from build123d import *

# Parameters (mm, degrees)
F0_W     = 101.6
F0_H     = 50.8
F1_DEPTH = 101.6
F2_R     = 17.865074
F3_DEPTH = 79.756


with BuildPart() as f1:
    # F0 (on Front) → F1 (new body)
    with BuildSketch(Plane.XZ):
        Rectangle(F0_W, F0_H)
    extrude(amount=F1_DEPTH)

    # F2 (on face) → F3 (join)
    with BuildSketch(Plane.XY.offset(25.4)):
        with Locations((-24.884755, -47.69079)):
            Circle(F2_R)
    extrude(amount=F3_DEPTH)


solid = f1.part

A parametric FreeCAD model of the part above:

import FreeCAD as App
import Part
import Sketcher

V = App.Vector
Q = App.Units.Quantity


def add_polygon(sketch, points):
    """Adds a closed chain of lines whose ends are joined by coincident constraints."""
    first, n = sketch.GeometryCount, len(points)
    for a, b in zip(points, points[1:] + points[:1]):
        sketch.addGeometry(Part.LineSegment(App.Vector(*a, 0), App.Vector(*b, 0)), False)
    for i in range(n):
        sketch.addConstraint(Sketcher.Constraint("Coincident", first + i, 2, first + (i + 1) % n, 1))

doc = App.newDocument("Part")
body = doc.addObject("PartDesign::Body", "Body")

sketch1 = body.newObject("Sketcher::SketchObject", "Sketch")
sketch1.AttachmentSupport = (doc.getObject("XZ_Plane"), [""])
sketch1.MapMode = "FlatFace"
add_polygon(sketch1, [(-51, 25), (-51, -25), (51, -25), (51, 25)])
sketch1.addConstraint(Sketcher.Constraint("Vertical", 0))
sketch1.addConstraint(Sketcher.Constraint("Horizontal", 1))
sketch1.addConstraint(Sketcher.Constraint("Vertical", 2))
sketch1.addConstraint(Sketcher.Constraint("Horizontal", 3))
sketch1.addConstraint(Sketcher.Constraint("Symmetric", 0, 2, 2, 2, -1, 1))
sketch1.addConstraint(Sketcher.Constraint("DistanceX", 1, 1, 1, 2, Q("4 in")))
sketch1.addConstraint(Sketcher.Constraint("DistanceY", 0, 2, 0, 1, Q("2 in")))
pad1 = body.newObject("PartDesign::Pad", "Pad")
pad1.Profile = sketch1
pad1.Length = Q("4 in")

sketch2 = body.newObject("Sketcher::SketchObject", "Sketch001")
sketch2.AttachmentSupport = (doc.getObject("XY_Plane"), [""])
sketch2.MapMode = "FlatFace"
sketch2.AttachmentOffset = App.Placement(V(0, 0, 1 * 25.4), App.Rotation())
sketch2.addGeometry(Part.Circle(V(-25, -48, 0), V(0, 0, 1), 18), False)
sketch2.addConstraint(Sketcher.Constraint("Diameter", 0, Q("35.730148 mm")))
sketch2.addConstraint(Sketcher.Constraint("DistanceY", 0, 3, -1, 1, Q("47.69079 mm")))
sketch2.addConstraint(Sketcher.Constraint("DistanceX", 0, 3, -1, 1, Q("24.884755 mm")))
pad2 = body.newObject("PartDesign::Pad", "Pad001")
pad2.Profile = sketch2
pad2.Length = Q("3.14 in")

doc.recompute()
